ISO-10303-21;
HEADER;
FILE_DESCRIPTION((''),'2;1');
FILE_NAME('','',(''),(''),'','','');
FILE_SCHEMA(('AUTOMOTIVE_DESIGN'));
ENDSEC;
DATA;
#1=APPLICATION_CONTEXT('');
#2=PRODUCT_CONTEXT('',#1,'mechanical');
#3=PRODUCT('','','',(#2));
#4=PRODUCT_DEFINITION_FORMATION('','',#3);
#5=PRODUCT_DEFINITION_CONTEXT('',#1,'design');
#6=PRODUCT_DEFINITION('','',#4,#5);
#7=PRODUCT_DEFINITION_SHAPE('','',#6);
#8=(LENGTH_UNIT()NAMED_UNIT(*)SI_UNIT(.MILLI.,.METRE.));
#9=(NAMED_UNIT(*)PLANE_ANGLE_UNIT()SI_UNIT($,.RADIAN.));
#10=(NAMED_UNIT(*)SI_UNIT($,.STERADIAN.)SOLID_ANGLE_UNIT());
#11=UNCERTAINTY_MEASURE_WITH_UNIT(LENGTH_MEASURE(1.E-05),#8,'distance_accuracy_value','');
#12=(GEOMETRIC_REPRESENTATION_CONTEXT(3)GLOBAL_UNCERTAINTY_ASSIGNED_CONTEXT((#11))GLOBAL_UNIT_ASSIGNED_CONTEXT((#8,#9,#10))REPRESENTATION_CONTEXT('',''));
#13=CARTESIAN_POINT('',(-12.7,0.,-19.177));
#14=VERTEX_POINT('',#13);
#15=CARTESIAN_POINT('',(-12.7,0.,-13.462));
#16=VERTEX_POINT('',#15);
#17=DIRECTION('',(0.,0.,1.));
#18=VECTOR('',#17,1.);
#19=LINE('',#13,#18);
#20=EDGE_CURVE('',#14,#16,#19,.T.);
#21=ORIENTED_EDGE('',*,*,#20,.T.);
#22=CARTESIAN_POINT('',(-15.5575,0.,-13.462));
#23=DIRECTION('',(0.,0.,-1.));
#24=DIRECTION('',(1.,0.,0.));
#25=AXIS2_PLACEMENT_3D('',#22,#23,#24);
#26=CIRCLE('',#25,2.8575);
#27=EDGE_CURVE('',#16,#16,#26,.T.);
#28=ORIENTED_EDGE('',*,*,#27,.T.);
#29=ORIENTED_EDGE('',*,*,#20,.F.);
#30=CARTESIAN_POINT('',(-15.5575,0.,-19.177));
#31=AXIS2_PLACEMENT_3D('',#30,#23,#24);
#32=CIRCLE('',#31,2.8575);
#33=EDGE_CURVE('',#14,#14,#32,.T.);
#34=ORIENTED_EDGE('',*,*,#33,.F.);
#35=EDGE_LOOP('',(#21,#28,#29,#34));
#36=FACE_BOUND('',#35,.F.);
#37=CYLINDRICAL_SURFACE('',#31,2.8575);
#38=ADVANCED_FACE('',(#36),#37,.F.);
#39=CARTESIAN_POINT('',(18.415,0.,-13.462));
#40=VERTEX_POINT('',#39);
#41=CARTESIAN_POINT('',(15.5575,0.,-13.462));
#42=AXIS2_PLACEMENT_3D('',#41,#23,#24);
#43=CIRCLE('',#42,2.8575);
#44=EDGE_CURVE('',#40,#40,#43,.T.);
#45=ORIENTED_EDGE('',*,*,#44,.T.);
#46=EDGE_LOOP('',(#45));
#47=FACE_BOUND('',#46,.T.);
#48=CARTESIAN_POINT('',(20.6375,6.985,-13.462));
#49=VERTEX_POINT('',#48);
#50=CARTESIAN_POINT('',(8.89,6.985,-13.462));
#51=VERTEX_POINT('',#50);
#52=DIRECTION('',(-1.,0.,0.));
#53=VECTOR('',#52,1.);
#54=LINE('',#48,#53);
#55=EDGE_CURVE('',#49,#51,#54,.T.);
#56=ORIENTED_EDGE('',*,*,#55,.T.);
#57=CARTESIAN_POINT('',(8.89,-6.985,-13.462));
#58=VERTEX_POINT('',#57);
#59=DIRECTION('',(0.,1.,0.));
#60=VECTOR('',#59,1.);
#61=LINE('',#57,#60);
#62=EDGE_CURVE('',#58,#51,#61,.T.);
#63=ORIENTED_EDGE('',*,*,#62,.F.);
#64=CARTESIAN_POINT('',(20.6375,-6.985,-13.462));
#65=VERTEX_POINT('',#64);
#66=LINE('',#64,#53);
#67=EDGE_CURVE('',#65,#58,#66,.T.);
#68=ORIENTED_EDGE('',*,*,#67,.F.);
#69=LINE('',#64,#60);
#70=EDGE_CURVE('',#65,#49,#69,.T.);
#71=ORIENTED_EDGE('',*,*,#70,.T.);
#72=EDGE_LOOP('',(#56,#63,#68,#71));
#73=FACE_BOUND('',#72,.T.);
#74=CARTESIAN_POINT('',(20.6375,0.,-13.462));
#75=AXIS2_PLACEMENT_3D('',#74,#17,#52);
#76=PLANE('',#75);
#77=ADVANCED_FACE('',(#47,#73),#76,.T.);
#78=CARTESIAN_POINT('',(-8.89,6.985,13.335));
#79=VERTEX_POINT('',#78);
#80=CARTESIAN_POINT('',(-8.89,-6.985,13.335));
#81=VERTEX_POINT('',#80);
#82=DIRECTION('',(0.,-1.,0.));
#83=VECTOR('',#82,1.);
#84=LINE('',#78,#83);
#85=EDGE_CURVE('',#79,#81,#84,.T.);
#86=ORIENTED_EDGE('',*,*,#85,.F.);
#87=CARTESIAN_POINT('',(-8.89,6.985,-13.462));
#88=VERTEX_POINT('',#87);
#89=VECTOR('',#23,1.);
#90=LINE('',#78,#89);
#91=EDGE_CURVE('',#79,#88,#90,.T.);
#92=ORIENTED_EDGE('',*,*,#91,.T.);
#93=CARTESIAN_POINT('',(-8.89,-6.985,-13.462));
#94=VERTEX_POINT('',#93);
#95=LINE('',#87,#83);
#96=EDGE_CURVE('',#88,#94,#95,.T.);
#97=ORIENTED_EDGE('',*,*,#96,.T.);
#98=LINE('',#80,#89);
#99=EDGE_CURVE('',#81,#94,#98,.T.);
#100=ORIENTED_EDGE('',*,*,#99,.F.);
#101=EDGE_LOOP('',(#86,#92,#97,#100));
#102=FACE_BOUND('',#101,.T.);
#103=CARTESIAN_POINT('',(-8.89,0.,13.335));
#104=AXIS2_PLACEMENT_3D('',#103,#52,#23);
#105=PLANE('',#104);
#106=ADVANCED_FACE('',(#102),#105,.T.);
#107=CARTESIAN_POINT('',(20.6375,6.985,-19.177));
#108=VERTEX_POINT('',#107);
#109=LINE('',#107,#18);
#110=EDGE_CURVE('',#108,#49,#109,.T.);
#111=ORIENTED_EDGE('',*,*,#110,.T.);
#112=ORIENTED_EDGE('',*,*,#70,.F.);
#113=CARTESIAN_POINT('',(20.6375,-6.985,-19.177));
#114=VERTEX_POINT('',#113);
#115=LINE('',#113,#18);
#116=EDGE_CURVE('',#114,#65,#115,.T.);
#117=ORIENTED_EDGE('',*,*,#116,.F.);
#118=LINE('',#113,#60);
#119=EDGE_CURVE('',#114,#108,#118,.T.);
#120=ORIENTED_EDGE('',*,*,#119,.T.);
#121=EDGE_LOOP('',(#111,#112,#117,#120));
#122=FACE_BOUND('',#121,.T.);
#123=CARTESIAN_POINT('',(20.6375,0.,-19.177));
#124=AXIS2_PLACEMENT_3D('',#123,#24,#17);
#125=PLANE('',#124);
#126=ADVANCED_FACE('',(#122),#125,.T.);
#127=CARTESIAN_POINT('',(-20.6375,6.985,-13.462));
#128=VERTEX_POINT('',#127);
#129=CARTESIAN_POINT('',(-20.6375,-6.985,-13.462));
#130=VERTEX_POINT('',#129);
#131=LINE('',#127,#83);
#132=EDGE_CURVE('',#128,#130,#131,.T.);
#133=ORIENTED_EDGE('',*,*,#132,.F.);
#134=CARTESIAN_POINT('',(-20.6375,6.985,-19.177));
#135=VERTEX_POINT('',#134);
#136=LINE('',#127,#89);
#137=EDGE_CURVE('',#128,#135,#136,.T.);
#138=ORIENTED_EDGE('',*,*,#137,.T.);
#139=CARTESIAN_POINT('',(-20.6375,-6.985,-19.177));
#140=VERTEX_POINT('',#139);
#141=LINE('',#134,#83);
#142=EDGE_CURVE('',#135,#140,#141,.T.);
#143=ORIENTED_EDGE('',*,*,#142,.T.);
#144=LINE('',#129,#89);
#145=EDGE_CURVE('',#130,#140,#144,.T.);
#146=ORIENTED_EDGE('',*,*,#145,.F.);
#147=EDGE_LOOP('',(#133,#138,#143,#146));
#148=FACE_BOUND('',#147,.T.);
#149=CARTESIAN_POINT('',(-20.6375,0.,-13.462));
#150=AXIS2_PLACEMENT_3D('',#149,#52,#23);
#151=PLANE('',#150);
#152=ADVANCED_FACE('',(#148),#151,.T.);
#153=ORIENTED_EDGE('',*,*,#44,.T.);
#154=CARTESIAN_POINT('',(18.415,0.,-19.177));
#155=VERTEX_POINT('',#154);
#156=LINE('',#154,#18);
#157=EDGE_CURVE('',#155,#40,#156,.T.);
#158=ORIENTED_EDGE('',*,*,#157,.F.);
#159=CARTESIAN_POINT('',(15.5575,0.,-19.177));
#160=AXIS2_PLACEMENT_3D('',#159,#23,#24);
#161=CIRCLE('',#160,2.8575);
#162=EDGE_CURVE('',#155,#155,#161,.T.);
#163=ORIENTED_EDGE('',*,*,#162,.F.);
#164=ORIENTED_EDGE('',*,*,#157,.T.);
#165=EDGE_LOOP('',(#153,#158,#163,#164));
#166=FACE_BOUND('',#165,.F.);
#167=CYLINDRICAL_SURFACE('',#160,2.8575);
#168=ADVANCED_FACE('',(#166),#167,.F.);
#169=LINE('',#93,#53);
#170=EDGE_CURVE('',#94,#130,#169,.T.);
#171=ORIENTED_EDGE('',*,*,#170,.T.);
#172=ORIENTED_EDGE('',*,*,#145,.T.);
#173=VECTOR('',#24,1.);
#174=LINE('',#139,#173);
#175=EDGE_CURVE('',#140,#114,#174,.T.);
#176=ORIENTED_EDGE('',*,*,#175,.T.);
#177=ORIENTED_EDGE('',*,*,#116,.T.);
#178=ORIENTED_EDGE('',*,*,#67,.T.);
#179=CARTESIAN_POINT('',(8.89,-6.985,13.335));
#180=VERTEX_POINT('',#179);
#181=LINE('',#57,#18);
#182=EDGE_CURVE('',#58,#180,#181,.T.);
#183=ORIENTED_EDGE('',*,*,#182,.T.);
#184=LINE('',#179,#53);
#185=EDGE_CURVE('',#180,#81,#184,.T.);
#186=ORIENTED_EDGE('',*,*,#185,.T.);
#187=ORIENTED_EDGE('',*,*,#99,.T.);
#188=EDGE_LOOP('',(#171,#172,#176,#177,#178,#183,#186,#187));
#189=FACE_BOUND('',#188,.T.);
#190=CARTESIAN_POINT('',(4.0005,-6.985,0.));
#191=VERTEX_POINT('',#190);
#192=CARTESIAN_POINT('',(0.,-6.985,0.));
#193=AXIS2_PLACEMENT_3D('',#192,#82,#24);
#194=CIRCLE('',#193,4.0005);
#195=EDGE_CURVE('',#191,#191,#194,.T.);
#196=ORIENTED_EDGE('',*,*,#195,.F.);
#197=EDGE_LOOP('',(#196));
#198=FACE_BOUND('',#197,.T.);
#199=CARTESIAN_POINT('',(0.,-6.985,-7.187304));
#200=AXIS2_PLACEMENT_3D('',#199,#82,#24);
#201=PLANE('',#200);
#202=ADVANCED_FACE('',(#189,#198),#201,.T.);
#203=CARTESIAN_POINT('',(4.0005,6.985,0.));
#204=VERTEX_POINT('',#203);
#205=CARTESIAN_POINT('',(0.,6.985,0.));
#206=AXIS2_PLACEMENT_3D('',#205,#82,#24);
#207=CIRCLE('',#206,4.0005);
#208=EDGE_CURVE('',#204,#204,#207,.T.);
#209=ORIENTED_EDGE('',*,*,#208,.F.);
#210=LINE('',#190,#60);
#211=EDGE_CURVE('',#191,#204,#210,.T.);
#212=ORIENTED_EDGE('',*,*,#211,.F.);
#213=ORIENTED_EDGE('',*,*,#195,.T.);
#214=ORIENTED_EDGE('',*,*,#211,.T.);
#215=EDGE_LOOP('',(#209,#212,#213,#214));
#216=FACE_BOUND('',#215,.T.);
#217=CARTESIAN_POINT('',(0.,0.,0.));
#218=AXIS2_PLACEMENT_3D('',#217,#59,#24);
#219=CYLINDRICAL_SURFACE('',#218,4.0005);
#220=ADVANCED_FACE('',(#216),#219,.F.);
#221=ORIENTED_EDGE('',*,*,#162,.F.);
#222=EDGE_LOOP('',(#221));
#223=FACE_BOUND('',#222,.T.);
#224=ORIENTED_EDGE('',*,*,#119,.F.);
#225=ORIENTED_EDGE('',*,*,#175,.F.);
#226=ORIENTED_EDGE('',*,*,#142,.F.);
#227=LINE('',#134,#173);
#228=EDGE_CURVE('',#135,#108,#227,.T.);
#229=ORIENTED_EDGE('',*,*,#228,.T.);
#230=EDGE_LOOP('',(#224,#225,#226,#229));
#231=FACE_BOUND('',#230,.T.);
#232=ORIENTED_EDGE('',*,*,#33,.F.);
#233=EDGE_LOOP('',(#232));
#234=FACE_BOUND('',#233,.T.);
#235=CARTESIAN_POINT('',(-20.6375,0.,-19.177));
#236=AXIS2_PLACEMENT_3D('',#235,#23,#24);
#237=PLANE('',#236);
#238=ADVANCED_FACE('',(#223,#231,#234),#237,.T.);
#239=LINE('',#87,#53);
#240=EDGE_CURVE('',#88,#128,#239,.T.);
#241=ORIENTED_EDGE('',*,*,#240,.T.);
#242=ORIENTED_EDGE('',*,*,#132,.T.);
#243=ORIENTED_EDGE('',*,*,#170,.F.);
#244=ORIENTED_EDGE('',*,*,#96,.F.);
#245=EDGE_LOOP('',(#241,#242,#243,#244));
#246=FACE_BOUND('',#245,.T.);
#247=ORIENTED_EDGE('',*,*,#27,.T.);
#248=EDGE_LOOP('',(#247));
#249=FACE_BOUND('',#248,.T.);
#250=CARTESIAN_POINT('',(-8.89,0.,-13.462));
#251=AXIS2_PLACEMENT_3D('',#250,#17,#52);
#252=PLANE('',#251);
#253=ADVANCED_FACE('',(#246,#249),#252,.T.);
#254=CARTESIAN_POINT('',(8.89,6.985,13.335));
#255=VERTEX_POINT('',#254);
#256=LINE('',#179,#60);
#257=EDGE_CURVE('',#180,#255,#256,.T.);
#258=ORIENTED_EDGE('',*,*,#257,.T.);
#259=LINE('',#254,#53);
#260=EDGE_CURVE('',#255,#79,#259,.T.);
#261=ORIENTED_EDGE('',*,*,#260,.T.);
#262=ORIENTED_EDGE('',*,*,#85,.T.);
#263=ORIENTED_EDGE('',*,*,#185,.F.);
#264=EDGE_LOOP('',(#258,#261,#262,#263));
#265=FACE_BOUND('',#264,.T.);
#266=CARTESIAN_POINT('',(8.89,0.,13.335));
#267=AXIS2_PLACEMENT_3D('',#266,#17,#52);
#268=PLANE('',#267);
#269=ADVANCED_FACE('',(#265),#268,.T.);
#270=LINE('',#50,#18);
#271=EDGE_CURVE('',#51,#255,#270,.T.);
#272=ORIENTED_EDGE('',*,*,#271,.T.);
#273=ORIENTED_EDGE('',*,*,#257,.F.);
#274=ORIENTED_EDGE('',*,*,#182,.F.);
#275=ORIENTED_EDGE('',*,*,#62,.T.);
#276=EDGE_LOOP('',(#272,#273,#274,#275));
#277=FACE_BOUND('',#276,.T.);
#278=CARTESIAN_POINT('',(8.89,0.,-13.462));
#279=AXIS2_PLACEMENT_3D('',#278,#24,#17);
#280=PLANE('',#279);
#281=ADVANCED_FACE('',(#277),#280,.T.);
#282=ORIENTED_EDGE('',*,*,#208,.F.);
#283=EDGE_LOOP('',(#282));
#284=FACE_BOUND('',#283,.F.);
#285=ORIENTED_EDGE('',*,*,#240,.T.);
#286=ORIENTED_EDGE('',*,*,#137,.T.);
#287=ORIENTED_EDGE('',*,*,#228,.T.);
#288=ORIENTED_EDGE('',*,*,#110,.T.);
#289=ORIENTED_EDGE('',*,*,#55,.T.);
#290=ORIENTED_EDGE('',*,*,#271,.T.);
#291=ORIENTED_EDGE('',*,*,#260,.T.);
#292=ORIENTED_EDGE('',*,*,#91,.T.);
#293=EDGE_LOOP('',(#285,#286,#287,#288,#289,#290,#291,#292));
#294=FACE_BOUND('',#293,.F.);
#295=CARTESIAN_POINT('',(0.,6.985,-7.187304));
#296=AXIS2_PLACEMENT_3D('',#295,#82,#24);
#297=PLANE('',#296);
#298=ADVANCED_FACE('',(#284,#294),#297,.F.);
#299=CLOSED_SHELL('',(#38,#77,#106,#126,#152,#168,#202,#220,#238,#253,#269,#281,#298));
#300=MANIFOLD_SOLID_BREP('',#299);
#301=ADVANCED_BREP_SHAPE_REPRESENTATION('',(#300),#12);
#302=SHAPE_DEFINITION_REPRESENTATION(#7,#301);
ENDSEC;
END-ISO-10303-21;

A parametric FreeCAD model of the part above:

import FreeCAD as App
import Part
import Sketcher
from FreeCAD import Vector
Q = App.Units.Quantity

doc = App.newDocument("Part")
params = doc.addObject("Spreadsheet::Sheet", "Params")
for row, (alias, value) in enumerate([
    ("sketch1_diameter", "0.315 in"),
    ("sketch1_width", "0.7 in"),
    ("sketch1_width2", "1.625 in"),
    ("sketch1_height", "1.055 in"),
    ("sketch1_height2", "0.225 in"),
    ("pad1_length", "0.55 in"),
    ("sketch2_diameter", "0.225 in"),
], start=1):
    params.set(f"A{row}", alias)
    params.set(f"B{row}", "=" + value)
    params.setAlias(f"B{row}", alias)

body = doc.addObject("PartDesign::Body", "Body")

sketch1 = doc.addObject("Sketcher::SketchObject", "Sketch")
body.addObject(sketch1)
sketch1.AttachmentSupport = (doc.XZ_Plane, [""])
sketch1.MapMode = "FlatFace"
sketch1.addGeometry([
    Part.LineSegment(Vector(8.9, 13.3, 0), Vector(-8.9, 13.3, 0)),
    Part.LineSegment(Vector(-8.9, 13.3, 0), Vector(-8.9, -13.5, 0)),
    Part.LineSegment(Vector(-8.9, -13.5, 0), Vector(-20.6, -13.5, 0)),
    Part.LineSegment(Vector(-20.6, -13.5, 0), Vector(-20.6, -19.2, 0)),
    Part.LineSegment(Vector(-20.6, -19.2, 0), Vector(20.6, -19.2, 0)),
    Part.LineSegment(Vector(20.6, -19.2, 0), Vector(20.6, -13.5, 0)),
    Part.LineSegment(Vector(20.6, -13.5, 0), Vector(8.9, -13.5, 0)),
    Part.LineSegment(Vector(8.9, -13.5, 0), Vector(8.9, 13.3, 0)),
    Part.Circle(Vector(0, 0, 0), Vector(0, 0, 1), 4),
], False)
sketch1.addConstraint([
    Sketcher.Constraint("Coincident", 0, 2, 1, 1),
    Sketcher.Constraint("Coincident", 1, 2, 2, 1),
    Sketcher.Constraint("Coincident", 2, 2, 3, 1),
    Sketcher.Constraint("Coincident", 3, 2, 4, 1),
    Sketcher.Constraint("Coincident", 4, 2, 5, 1),
    Sketcher.Constraint("Coincident", 5, 2, 6, 1),
    Sketcher.Constraint("Coincident", 6, 2, 7, 1),
    Sketcher.Constraint("Coincident", 7, 2, 0, 1),
    Sketcher.Constraint("Horizontal", 0),
    Sketcher.Constraint("Vertical", 1),
    Sketcher.Constraint("Horizontal", 2),
    Sketcher.Constraint("Vertical", 3),
    Sketcher.Constraint("Horizontal", 4),
    Sketcher.Constraint("Vertical", 5),
    Sketcher.Constraint("Horizontal", 6),
    Sketcher.Constraint("Vertical", 7),
    Sketcher.Constraint("Coincident", 8, 3, -1, 1),
    Sketcher.Constraint("Symmetric", 2, 2, 5, 2, -2),
    Sketcher.Constraint("Equal", 2, 6),
    Sketcher.Constraint("Diameter", 8, Q("0.315 in")),
    Sketcher.Constraint("DistanceX", 0, 2, 0, 1, Q("0.7 in")),
    Sketcher.Constraint("DistanceX", 4, 1, 4, 2, Q("1.625 in")),
    Sketcher.Constraint("DistanceY", 1, 2, 1, 1, Q("1.055 in")),
    Sketcher.Constraint("DistanceY", 3, 2, 3, 1, Q("0.225 in")),
    Sketcher.Constraint("DistanceY", 1, 2, -1, 1, Q("0.53 in")),
])
sketch1.setExpression("Constraints[19]", "Params.sketch1_diameter")
sketch1.setExpression("Constraints[20]", "Params.sketch1_width")
sketch1.setExpression("Constraints[21]", "Params.sketch1_width2")
sketch1.setExpression("Constraints[22]", "Params.sketch1_height")
sketch1.setExpression("Constraints[23]", "Params.sketch1_height2")
pad1 = doc.addObject("PartDesign::Pad", "Pad")
body.addObject(pad1)
pad1.Profile = sketch1
pad1.setExpression("Length", "Params.pad1_length")
pad1.Midplane = True

sketch2 = doc.addObject("Sketcher::SketchObject", "Sketch001")
body.addObject(sketch2)
sketch2.AttachmentSupport = (doc.XY_Plane, [""])
sketch2.MapMode = "FlatFace"
sketch2.AttachmentOffset = App.Placement(Vector(0, 0, -0.755 * 25.4), App.Rotation())
sketch2.addGeometry([
    Part.Circle(Vector(-15.6, 0, 0), Vector(0, 0, 1), 2.9),
    Part.Circle(Vector(15.6, 0, 0), Vector(0, 0, 1), 2.9),
], False)
sketch2.addConstraint([
    Sketcher.Constraint("Equal", 0, 1),
    Sketcher.Constraint("Symmetric", 0, 3, 1, 3, -1, 1),
    Sketcher.Constraint("PointOnObject", 0, 3, -1),
    Sketcher.Constraint("Diameter", 0, Q("0.225 in")),
    Sketcher.Constraint("DistanceX", 0, 3, 1, 3, Q("1.225 in")),
])
sketch2.setExpression("Constraints[3]", "Params.sketch2_diameter")
pocket1 = doc.addObject("PartDesign::Pocket", "Pocket")
body.addObject(pocket1)
pocket1.Profile = sketch2
pocket1.Type = "ThroughAll"
pocket1.Reversed = True

doc.recompute()
